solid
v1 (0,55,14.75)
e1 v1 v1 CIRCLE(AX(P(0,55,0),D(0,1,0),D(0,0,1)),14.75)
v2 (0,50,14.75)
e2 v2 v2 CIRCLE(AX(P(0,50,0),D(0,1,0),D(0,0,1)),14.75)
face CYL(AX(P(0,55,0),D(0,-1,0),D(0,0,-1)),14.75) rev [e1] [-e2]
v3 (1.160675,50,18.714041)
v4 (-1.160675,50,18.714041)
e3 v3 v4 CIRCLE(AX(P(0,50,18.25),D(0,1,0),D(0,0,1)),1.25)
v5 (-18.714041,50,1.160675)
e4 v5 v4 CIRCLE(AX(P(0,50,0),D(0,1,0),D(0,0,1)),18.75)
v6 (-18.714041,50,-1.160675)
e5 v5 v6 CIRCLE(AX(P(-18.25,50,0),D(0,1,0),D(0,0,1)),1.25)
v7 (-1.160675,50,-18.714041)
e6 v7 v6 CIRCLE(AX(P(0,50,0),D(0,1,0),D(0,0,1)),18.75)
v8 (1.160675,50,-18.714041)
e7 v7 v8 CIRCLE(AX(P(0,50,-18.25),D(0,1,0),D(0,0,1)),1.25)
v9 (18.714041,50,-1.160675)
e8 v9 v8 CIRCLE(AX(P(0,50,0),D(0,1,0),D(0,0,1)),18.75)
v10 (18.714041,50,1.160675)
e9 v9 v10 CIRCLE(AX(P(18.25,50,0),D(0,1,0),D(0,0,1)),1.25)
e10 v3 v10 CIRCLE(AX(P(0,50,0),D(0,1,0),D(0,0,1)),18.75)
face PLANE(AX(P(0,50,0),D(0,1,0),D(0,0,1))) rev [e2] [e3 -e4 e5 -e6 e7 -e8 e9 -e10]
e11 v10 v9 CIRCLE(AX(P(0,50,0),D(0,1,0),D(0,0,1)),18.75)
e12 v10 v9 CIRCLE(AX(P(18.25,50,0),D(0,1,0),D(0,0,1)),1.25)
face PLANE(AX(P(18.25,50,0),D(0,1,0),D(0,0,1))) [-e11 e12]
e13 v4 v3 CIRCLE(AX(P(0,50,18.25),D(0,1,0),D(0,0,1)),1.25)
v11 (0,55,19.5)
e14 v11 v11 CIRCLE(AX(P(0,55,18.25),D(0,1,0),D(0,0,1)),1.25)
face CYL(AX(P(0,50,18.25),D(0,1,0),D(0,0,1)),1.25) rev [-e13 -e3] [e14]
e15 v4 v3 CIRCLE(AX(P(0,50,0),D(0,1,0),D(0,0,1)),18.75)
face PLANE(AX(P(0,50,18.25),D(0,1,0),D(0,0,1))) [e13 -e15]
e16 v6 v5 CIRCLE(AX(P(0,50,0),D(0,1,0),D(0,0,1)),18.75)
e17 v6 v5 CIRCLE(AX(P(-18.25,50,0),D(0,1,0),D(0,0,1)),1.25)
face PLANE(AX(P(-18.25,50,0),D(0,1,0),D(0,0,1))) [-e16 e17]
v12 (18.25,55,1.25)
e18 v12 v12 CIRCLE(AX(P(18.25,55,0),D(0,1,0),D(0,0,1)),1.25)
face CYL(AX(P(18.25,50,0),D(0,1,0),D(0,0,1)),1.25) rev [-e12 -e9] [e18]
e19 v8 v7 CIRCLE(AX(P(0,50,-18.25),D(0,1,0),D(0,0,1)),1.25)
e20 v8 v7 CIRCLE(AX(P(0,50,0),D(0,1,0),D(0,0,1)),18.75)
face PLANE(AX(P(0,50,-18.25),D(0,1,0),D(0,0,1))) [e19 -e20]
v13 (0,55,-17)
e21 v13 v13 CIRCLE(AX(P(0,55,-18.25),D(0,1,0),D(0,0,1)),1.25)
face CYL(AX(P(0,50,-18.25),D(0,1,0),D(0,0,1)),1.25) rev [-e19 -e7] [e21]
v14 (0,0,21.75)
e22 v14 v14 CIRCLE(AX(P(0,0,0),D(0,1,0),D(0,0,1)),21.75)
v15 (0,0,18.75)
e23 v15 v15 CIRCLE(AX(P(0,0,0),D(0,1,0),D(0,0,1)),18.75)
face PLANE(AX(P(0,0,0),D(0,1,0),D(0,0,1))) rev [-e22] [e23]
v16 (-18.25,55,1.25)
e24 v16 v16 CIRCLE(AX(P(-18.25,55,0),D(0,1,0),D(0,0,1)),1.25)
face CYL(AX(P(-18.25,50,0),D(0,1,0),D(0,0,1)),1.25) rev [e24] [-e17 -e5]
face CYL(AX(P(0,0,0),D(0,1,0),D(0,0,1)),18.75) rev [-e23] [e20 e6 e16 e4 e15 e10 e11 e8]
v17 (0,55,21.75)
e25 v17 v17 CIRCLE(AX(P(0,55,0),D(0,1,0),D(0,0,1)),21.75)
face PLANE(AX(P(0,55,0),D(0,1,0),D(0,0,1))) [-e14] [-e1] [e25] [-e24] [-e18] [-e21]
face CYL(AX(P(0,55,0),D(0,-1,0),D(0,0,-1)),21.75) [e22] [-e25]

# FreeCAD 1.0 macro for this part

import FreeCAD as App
import Part
import Sketcher

doc = App.newDocument("Part")
body = doc.addObject("PartDesign::Body", "Body")

sketch1 = doc.addObject("Sketcher::SketchObject", "Sketch")
body.addObject(sketch1)
sketch1.AttachmentSupport = (doc.XZ_Plane, [""])
sketch1.MapMode = "FlatFace"
sketch1.addGeometry([
    Part.Circle(App.Vector(0, 0, 0), App.Vector(0, 0, 1), 22),
    Part.Circle(App.Vector(0, 0, 0), App.Vector(0, 0, 1), 15),
], False)
sketch1.addConstraint([
    Sketcher.Constraint("Coincident", 0, 3, -1, 1),
    Sketcher.Constraint("Coincident", 1, 3, -1, 1),
    Sketcher.Constraint("Diameter", 0, 43.5),
    Sketcher.Constraint("Diameter", 1, 29.5),
])
pad1 = doc.addObject("PartDesign::Pad", "Pad")
body.addObject(pad1)
pad1.Profile = sketch1
pad1.Length = 55
pad1.Reversed = True

sketch2 = doc.addObject("Sketcher::SketchObject", "Sketch001")
body.addObject(sketch2)
sketch2.AttachmentSupport = (doc.XZ_Plane, [""])
sketch2.MapMode = "FlatFace"
sketch2.AttachmentOffset = App.Placement(App.Vector(0, 0, -50), App.Rotation())
sketch2.addGeometry([
    Part.Circle(App.Vector(0, 0, 0), App.Vector(0, 0, 1), 19),
    Part.Circle(App.Vector(0, 0, 0), App.Vector(0, 0, 1), 15),
], False)
sketch2.addConstraint([
    Sketcher.Constraint("Coincident", 0, 3, -1, 1),
    Sketcher.Constraint("Coincident", 1, 3, -1, 1),
    Sketcher.Constraint("Diameter", 0, 37.5),
    Sketcher.Constraint("Diameter", 1, 29.5),
])
pocket1 = doc.addObject("PartDesign::Pocket", "Pocket")
body.addObject(pocket1)
pocket1.Profile = sketch2
pocket1.Type = "ThroughAll"
pocket1.Reversed = True

sketch3 = doc.addObject("Sketcher::SketchObject", "Sketch002")
body.addObject(sketch3)
sketch3.AttachmentSupport = (doc.XZ_Plane, [""])
sketch3.MapMode = "FlatFace"
sketch3.AttachmentOffset = App.Placement(App.Vector(0, 0, -55), App.Rotation())
sketch3.addGeometry([
    Part.Circle(App.Vector(0, -18.2, 0), App.Vector(0, 0, 1), 1.2),
    Part.Circle(App.Vector(18.2, 0, 0), App.Vector(0, 0, 1), 1.2),
    Part.Circle(App.Vector(0, 18.2, 0), App.Vector(0, 0, 1), 1.2),
    Part.Circle(App.Vector(-18.2, 0, 0), App.Vector(0, 0, 1), 1.2),
], False)
sketch3.addConstraint([
    Sketcher.Constraint("Equal", 0, 1),
    Sketcher.Constraint("Equal", 1, 2),
    Sketcher.Constraint("Equal", 2, 3),
    Sketcher.Constraint("Symmetric", 0, 3, 2, 3, -1, 1),
    Sketcher.Constraint("Symmetric", 1, 3, 3, 3, -1, 1),
    Sketcher.Constraint("PointOnObject", 0, 3, -2),
    Sketcher.Constraint("PointOnObject", 1, 3, -1),
    Sketcher.Constraint("Diameter", 0, 2.5),
    Sketcher.Constraint("DistanceY", 0, 3, 2, 3, 36.5),
    Sketcher.Constraint("DistanceX", 3, 3, 1, 3, 36.5),
])
pocket2 = doc.addObject("PartDesign::Pocket", "Pocket001")
body.addObject(pocket2)
pocket2.Profile = sketch3
pocket2.Length = 5
pocket2.Reversed = True

doc.recompute()
